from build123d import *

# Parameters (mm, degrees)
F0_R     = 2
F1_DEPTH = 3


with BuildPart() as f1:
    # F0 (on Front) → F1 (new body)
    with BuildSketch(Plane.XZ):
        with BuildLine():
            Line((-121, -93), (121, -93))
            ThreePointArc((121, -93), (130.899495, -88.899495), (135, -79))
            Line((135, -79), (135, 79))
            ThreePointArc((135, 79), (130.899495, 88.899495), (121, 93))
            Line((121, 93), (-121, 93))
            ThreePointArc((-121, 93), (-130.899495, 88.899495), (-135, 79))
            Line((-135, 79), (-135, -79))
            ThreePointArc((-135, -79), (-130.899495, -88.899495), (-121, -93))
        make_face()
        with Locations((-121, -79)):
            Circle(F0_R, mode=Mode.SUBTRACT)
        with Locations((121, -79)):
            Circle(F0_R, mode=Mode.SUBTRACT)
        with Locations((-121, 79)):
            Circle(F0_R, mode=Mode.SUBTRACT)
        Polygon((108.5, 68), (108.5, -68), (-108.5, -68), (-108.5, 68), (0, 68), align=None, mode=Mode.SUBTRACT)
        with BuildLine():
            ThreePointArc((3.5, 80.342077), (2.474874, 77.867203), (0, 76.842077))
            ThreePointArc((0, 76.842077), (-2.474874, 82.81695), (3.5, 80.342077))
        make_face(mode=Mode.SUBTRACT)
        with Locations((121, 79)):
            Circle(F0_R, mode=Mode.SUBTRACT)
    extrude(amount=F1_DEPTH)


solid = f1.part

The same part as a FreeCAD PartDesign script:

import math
import FreeCAD as App
import Part
import Sketcher

doc = App.newDocument("Part")
body = doc.addObject("PartDesign::Body", "Body")

sketch1 = body.newObject("Sketcher::SketchObject", "Sketch")
sketch1.AttachmentSupport = (doc.getObject("XZ_Plane"), [""])
sketch1.MapMode = "FlatFace"
sketch1.addGeometry(Part.LineSegment(App.Vector(-121, -93, 0), App.Vector(121, -93, 0)), False)
sketch1.addGeometry(Part.ArcOfCircle(Part.Circle(App.Vector(121, -79, 0), App.Vector(0, 0, 1), 14), math.radians(-90.000001), math.radians(0.000001)), False)
sketch1.addGeometry(Part.LineSegment(App.Vector(135, -79, 0), App.Vector(135, 79, 0)), False)
sketch1.addGeometry(Part.ArcOfCircle(Part.Circle(App.Vector(121, 79, 0), App.Vector(0, 0, 1), 14), math.radians(-0.000001), math.radians(90.000001)), False)
sketch1.addGeometry(Part.LineSegment(App.Vector(121, 93, 0), App.Vector(-121, 93, 0)), False)
sketch1.addGeometry(Part.ArcOfCircle(Part.Circle(App.Vector(-121, 79, 0), App.Vector(0, 0, 1), 14), math.radians(89.999999), math.radians(180.000001)), False)
sketch1.addGeometry(Part.LineSegment(App.Vector(-135, 79, 0), App.Vector(-135, -79, 0)), False)
sketch1.addGeometry(Part.ArcOfCircle(Part.Circle(App.Vector(-121, -79, 0), App.Vector(0, 0, 1), 14), math.radians(179.999999), math.radians(270.000001)), False)
sketch1.addGeometry(Part.Circle(App.Vector(-121, -79, 0), App.Vector(0, 0, 1), 2), False)
sketch1.addGeometry(Part.Circle(App.Vector(121, -79, 0), App.Vector(0, 0, 1), 2), False)
sketch1.addGeometry(Part.LineSegment(App.Vector(-108.5, 68, 0), App.Vector(108.5, 68, 0)), False)
sketch1.addGeometry(Part.LineSegment(App.Vector(108.5, 68, 0), App.Vector(108.5, -68, 0)), False)
sketch1.addGeometry(Part.LineSegment(App.Vector(108.5, -68, 0), App.Vector(-108.5, -68, 0)), False)
sketch1.addGeometry(Part.LineSegment(App.Vector(-108.5, -68, 0), App.Vector(-108.5, 68, 0)), False)
sketch1.addGeometry(Part.Circle(App.Vector(-121, 79, 0), App.Vector(0, 0, 1), 2), False)
sketch1.addGeometry(Part.ArcOfCircle(Part.Circle(App.Vector(0, 80.342077, 0), App.Vector(0, 0, 1), 3.5), math.radians(0.000002), math.radians(269.999998)), False)
sketch1.addGeometry(Part.ArcOfCircle(Part.Circle(App.Vector(0.000001, 80.342076, 0), App.Vector(0, 0, 1), 3.499999), math.radians(-90.000015), math.radians(0.000015)), False)
sketch1.addGeometry(Part.Circle(App.Vector(121, 79, 0), App.Vector(0, 0, 1), 2), False)
sketch1.addConstraint(Sketcher.Constraint("Tangent", 0, 2, 1, 1))
sketch1.addConstraint(Sketcher.Constraint("Tangent", 1, 2, 2, 1))
sketch1.addConstraint(Sketcher.Constraint("Tangent", 2, 2, 3, 1))
sketch1.addConstraint(Sketcher.Constraint("Tangent", 3, 2, 4, 1))
sketch1.addConstraint(Sketcher.Constraint("Tangent", 4, 2, 5, 1))
sketch1.addConstraint(Sketcher.Constraint("Tangent", 5, 2, 6, 1))
sketch1.addConstraint(Sketcher.Constraint("Tangent", 6, 2, 7, 1))
sketch1.addConstraint(Sketcher.Constraint("Tangent", 7, 2, 0, 1))
sketch1.addConstraint(Sketcher.Constraint("Coincident", 10, 2, 11, 1))
sketch1.addConstraint(Sketcher.Constraint("Coincident", 11, 2, 12, 1))
sketch1.addConstraint(Sketcher.Constraint("Coincident", 12, 2, 13, 1))
sketch1.addConstraint(Sketcher.Constraint("Coincident", 13, 2, 10, 1))
sketch1.addConstraint(Sketcher.Constraint("Tangent", 15, 1, 16, 2))
sketch1.addConstraint(Sketcher.Constraint("Coincident", 16, 1, 15, 2))
sketch1.addConstraint(Sketcher.Constraint("Horizontal", 0))
sketch1.addConstraint(Sketcher.Constraint("Vertical", 2))
sketch1.addConstraint(Sketcher.Constraint("Horizontal", 4))
sketch1.addConstraint(Sketcher.Constraint("Vertical", 6))
sketch1.addConstraint(Sketcher.Constraint("Horizontal", 10))
sketch1.addConstraint(Sketcher.Constraint("Vertical", 11))
sketch1.addConstraint(Sketcher.Constraint("Horizontal", 12))
sketch1.addConstraint(Sketcher.Constraint("Vertical", 13))
sketch1.addConstraint(Sketcher.Constraint("Coincident", 8, 3, 7, 3))
sketch1.addConstraint(Sketcher.Constraint("Coincident", 9, 3, 1, 3))
sketch1.addConstraint(Sketcher.Constraint("Coincident", 14, 3, 5, 3))
sketch1.addConstraint(Sketcher.Constraint("Coincident", 17, 3, 3, 3))
sketch1.addConstraint(Sketcher.Constraint("Equal", 1, 3))
sketch1.addConstraint(Sketcher.Constraint("Equal", 3, 5))
sketch1.addConstraint(Sketcher.Constraint("Equal", 5, 7))
sketch1.addConstraint(Sketcher.Constraint("Equal", 8, 9))
sketch1.addConstraint(Sketcher.Constraint("Equal", 9, 14))
sketch1.addConstraint(Sketcher.Constraint("Equal", 14, 17))
sketch1.addConstraint(Sketcher.Constraint("Symmetric", 1, 3, 5, 3, -1, 1))
sketch1.addConstraint(Sketcher.Constraint("Symmetric", 10, 2, 12, 2, -1, 1))
sketch1.addConstraint(Sketcher.Constraint("PointOnObject", 15, 3, -2))
sketch1.addConstraint(Sketcher.Constraint("PointOnObject", 16, 1, -2))
sketch1.addConstraint(Sketcher.Constraint("Horizontal", 16, 3, 15, 1))
sketch1.addConstraint(Sketcher.Constraint("Diameter", 8, 4.0))
sketch1.addConstraint(Sketcher.Constraint("Radius", 1, 14.0))
sketch1.addConstraint(Sketcher.Constraint("Radius", 15, 3.5))
sketch1.addConstraint(Sketcher.Constraint("DistanceX", 0, 1, 0, 2, 242.0))
sketch1.addConstraint(Sketcher.Constraint("DistanceX", 10, 1, 10, 2, 217.0))
sketch1.addConstraint(Sketcher.Constraint("DistanceY", 2, 1, 2, 2, 158.0))
sketch1.addConstraint(Sketcher.Constraint("DistanceY", 11, 2, 11, 1, 136.0))
sketch1.addConstraint(Sketcher.Constraint("DistanceY", -1, 1, 15, 3, 80.342077))
pad1 = body.newObject("PartDesign::Pad", "Pad")
pad1.Profile = sketch1
pad1.Length = 3

doc.recompute()
